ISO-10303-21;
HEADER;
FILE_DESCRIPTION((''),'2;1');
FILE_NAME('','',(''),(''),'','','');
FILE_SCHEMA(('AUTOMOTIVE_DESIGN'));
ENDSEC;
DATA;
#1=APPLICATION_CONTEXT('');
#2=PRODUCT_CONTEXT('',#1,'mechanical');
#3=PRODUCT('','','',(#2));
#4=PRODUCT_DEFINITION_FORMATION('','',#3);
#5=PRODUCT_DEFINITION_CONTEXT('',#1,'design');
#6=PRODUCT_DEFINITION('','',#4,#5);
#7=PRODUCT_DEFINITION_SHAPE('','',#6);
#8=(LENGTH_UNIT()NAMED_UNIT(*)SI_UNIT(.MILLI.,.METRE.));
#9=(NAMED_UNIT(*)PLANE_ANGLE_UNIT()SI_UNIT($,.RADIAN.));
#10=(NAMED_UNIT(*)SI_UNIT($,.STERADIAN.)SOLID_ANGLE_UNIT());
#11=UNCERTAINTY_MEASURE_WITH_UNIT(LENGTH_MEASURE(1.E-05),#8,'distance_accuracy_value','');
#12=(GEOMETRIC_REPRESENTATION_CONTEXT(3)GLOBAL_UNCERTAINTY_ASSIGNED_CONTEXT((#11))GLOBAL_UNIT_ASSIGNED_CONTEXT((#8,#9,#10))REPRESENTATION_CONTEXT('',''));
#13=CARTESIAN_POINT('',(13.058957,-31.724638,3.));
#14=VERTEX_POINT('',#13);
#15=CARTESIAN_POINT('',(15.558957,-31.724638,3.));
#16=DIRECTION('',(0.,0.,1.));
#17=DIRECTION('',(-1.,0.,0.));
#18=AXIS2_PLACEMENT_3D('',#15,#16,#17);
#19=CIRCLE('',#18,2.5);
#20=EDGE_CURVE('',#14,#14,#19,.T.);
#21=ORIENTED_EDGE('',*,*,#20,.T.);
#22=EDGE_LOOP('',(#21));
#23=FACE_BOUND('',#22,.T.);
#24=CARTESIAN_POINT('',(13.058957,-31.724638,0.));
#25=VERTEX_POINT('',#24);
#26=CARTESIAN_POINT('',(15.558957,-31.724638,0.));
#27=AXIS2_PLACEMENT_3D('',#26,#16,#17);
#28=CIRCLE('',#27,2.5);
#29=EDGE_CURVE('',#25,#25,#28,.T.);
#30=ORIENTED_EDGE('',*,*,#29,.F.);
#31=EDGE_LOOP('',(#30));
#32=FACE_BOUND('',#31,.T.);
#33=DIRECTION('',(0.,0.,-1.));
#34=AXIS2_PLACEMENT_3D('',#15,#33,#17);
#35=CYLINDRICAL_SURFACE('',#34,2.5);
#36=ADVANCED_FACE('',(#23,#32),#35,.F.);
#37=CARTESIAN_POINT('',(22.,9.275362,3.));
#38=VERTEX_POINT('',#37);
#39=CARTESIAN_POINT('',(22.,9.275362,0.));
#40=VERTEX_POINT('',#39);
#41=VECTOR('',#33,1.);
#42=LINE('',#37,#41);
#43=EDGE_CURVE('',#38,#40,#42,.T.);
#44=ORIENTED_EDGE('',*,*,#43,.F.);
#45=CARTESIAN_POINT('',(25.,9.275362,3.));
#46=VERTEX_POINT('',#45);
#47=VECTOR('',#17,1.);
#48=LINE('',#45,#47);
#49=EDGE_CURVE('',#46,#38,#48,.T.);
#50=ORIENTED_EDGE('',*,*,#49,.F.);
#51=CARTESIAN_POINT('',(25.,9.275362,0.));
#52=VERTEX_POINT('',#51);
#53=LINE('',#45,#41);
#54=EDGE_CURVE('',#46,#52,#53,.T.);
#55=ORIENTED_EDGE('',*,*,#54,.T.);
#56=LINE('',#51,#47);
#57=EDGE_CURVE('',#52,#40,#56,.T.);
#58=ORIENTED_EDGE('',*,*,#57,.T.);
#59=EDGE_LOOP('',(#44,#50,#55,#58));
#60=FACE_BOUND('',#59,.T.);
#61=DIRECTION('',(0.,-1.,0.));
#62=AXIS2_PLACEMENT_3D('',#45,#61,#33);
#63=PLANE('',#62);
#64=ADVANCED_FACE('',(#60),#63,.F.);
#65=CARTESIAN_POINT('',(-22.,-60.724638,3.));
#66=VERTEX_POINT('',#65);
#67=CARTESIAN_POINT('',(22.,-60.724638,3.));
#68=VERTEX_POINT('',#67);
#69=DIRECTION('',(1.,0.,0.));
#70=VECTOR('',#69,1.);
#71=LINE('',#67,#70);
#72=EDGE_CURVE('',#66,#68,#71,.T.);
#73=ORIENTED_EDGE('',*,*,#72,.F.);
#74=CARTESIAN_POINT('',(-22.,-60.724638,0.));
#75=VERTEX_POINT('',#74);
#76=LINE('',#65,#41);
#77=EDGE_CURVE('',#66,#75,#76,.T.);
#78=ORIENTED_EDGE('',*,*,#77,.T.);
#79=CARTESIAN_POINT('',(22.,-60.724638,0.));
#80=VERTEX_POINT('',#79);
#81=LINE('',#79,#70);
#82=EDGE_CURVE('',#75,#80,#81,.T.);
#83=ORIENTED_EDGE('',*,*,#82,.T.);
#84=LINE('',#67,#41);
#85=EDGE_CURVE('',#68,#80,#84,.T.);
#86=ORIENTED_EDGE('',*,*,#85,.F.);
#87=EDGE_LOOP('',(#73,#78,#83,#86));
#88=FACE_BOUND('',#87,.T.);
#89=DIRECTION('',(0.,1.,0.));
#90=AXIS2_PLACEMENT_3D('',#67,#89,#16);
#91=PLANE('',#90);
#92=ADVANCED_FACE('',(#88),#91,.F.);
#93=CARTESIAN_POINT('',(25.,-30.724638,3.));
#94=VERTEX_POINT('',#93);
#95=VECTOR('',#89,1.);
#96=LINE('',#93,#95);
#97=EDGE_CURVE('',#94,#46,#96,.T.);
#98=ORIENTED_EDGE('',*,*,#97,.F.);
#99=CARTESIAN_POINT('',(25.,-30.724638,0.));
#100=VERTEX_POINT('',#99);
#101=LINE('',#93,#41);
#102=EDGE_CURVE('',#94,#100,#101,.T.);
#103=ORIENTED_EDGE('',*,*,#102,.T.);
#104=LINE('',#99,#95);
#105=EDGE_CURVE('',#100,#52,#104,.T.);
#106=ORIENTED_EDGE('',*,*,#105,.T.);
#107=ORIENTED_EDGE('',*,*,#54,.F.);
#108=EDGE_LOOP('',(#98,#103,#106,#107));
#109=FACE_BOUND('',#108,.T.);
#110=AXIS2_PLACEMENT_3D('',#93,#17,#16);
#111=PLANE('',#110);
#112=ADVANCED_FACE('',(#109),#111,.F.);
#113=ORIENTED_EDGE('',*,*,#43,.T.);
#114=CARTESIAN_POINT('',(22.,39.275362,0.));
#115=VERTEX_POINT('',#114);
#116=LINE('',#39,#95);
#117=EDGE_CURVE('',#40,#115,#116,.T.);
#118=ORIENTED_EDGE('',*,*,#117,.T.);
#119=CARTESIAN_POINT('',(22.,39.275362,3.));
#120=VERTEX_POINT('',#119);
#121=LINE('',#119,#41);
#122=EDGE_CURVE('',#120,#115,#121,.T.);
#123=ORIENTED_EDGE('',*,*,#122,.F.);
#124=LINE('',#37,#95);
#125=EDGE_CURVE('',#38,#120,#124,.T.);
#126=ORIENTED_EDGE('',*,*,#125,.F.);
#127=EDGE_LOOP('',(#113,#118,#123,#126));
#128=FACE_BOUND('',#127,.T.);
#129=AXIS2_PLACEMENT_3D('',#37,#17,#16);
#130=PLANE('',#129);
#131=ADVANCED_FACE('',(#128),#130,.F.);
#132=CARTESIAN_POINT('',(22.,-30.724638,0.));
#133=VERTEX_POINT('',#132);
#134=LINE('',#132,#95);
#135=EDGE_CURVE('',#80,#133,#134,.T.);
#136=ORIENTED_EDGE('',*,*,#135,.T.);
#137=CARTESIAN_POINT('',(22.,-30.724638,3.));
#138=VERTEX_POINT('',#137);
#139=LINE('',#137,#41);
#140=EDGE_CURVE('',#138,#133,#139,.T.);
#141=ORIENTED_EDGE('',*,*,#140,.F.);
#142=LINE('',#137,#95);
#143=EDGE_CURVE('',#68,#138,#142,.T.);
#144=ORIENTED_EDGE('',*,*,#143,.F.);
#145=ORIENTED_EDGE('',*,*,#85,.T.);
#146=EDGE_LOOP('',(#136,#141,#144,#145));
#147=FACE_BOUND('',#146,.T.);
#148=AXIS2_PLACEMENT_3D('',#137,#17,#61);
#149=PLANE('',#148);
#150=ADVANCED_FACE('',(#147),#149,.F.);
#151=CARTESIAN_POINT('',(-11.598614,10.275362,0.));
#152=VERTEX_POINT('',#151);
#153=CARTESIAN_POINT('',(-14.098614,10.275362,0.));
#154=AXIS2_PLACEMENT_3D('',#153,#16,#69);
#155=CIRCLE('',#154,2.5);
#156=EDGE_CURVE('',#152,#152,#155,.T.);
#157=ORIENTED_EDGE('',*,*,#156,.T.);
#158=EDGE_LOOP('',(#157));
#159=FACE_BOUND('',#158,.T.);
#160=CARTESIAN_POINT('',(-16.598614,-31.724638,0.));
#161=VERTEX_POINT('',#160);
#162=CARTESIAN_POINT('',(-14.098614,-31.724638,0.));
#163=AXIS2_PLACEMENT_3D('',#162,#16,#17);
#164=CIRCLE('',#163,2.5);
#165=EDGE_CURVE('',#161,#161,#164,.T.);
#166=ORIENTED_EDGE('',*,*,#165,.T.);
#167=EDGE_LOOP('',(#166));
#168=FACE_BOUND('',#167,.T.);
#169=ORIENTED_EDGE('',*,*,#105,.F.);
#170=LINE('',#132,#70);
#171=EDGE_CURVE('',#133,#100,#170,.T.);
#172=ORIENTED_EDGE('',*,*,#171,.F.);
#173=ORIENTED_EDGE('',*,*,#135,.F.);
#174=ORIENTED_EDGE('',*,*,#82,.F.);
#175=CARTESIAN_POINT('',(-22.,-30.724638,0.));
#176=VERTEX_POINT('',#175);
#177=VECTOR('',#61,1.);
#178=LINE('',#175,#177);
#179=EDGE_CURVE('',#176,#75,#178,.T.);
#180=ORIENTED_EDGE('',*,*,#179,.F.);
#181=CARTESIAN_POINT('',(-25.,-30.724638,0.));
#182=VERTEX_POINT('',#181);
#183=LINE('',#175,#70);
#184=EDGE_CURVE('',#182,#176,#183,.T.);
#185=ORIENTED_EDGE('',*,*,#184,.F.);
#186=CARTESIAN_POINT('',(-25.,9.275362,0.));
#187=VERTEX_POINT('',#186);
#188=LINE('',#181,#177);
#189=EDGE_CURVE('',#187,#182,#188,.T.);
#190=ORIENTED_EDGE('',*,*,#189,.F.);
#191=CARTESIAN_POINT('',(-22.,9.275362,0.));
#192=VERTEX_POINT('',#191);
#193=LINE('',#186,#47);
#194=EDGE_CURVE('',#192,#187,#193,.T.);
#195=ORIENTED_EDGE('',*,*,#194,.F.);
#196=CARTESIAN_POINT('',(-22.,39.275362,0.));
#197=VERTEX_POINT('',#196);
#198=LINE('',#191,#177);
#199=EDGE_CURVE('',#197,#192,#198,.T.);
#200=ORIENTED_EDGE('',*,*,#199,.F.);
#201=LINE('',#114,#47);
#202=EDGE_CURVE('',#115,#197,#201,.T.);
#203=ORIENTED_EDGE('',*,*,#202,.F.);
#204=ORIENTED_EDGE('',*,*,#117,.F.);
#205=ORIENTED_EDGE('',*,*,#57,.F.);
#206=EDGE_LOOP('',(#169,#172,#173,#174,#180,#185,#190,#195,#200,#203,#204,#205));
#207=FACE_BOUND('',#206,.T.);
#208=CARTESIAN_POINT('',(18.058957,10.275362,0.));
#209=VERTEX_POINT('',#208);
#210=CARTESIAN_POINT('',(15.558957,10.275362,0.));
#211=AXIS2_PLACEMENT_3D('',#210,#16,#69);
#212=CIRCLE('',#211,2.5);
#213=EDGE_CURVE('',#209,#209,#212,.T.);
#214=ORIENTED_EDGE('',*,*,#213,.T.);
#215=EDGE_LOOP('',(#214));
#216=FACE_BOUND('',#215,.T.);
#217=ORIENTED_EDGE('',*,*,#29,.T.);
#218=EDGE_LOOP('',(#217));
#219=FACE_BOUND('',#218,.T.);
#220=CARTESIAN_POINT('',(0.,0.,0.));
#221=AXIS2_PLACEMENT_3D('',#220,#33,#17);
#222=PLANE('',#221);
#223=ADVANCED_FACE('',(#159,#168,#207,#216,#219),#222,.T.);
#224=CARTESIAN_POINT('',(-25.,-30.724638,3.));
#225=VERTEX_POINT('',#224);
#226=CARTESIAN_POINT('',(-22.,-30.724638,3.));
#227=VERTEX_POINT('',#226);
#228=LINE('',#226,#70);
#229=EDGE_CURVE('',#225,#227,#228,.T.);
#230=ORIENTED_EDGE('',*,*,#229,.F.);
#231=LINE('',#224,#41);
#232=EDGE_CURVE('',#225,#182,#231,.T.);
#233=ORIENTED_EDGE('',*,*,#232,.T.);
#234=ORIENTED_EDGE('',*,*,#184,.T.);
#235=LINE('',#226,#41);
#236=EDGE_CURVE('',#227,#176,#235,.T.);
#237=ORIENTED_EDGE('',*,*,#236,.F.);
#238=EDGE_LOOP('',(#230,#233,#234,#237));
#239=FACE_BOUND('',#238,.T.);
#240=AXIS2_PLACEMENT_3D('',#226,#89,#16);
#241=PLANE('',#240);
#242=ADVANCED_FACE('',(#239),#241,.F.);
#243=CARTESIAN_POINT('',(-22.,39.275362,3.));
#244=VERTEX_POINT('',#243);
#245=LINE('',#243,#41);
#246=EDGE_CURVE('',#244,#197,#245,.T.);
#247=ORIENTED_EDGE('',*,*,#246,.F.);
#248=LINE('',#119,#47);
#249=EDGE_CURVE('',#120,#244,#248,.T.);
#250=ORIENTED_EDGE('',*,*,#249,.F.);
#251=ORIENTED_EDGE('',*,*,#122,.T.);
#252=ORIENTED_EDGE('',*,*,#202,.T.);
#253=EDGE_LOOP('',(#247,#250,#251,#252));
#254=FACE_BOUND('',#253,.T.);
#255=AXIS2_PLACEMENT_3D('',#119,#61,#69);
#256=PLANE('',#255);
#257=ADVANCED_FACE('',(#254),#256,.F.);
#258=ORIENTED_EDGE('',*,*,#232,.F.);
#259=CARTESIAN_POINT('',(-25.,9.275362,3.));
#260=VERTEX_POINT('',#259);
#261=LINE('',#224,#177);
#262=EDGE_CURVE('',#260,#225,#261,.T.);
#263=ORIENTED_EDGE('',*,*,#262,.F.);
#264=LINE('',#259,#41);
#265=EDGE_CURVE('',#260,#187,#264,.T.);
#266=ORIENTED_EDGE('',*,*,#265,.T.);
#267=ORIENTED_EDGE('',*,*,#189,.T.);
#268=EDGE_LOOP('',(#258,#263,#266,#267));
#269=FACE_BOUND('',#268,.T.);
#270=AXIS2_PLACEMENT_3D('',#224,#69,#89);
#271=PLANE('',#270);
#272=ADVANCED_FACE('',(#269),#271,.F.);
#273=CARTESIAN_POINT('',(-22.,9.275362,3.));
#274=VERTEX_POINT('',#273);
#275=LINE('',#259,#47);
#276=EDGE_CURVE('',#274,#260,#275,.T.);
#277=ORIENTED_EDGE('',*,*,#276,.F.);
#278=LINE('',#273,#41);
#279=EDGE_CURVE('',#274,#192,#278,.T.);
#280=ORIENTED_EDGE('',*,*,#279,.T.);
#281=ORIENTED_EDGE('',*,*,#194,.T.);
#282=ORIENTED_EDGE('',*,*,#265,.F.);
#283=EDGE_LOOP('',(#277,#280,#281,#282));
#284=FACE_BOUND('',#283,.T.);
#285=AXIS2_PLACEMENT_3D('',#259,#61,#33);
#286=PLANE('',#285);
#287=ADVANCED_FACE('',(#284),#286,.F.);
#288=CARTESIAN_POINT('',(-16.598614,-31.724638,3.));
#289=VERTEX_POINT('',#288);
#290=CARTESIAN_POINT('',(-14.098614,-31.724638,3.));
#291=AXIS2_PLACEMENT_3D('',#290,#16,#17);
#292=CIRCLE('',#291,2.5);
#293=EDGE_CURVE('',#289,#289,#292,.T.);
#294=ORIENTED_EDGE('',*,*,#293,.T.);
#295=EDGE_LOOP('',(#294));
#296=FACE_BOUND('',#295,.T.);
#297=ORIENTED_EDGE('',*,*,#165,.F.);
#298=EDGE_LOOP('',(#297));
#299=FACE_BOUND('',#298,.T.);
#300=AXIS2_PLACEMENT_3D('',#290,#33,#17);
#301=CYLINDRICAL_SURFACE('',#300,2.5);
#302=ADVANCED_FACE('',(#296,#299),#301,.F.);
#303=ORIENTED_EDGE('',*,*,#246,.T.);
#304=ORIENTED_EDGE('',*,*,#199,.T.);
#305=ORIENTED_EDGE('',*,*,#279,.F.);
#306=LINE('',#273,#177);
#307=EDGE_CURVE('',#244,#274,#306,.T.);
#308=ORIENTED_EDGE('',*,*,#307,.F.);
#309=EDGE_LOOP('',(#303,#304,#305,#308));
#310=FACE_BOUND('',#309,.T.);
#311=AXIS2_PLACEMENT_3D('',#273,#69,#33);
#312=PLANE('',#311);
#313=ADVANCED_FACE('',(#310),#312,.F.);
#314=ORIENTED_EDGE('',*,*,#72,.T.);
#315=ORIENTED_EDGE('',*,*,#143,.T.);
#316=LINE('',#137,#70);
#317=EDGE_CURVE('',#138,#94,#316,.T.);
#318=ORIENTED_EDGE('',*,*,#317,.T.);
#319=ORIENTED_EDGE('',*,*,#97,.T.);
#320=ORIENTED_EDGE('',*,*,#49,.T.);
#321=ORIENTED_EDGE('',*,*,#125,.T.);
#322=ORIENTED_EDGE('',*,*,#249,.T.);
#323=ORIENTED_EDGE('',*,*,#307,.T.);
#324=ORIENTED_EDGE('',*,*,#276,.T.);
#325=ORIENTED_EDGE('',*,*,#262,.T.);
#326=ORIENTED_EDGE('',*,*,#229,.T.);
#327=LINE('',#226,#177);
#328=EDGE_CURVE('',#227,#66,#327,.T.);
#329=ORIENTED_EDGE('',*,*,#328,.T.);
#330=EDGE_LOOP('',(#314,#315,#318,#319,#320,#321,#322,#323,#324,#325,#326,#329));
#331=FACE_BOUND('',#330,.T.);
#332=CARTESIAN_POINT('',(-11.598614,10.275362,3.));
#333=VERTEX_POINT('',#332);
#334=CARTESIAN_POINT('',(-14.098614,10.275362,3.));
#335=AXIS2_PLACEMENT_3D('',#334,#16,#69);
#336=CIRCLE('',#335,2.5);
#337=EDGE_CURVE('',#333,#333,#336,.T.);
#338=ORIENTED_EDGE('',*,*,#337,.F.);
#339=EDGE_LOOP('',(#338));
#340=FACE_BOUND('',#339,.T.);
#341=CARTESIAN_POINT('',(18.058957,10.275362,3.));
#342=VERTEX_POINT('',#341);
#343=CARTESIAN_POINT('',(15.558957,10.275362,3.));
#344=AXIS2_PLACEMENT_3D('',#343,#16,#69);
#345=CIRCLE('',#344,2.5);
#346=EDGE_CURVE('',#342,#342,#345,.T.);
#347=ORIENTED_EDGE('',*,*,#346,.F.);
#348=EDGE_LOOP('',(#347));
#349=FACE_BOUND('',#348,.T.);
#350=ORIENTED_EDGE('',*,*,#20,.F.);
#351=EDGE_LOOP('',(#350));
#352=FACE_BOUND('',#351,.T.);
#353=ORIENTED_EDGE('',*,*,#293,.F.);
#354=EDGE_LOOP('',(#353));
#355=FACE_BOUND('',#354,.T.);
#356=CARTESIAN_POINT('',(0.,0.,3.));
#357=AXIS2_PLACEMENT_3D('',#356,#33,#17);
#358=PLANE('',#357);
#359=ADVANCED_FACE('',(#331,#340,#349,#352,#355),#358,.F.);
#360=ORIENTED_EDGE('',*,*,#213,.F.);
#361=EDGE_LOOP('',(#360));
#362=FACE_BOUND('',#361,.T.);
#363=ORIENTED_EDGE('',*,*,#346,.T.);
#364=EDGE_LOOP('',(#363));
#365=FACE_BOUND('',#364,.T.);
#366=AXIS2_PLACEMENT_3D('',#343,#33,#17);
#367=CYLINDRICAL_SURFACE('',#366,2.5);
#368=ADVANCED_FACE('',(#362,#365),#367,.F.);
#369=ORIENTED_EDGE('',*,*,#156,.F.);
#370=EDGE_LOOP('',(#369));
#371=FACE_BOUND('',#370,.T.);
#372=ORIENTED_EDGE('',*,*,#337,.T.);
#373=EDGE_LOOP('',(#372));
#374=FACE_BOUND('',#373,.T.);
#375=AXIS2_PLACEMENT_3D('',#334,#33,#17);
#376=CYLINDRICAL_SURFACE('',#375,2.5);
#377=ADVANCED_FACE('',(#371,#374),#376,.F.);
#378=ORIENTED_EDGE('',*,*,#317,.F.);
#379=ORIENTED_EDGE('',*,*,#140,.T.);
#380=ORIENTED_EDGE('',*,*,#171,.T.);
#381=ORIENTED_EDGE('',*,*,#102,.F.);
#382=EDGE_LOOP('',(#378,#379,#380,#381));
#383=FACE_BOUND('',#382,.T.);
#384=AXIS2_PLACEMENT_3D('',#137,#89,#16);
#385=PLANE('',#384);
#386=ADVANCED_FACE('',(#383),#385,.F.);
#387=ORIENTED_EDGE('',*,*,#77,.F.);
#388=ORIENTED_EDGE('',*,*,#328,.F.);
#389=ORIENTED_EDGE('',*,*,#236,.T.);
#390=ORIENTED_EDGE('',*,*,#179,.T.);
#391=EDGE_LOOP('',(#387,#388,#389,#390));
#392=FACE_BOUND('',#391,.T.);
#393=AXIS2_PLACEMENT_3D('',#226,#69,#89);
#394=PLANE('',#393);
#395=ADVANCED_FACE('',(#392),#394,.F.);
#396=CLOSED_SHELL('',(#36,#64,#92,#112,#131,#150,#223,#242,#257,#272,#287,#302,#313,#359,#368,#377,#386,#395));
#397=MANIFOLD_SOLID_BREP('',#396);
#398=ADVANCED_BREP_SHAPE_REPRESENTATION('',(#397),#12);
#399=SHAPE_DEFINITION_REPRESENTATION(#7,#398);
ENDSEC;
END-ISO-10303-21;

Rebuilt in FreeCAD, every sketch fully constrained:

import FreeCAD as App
import Part
import Sketcher


def add_polygon(sketch, points):
    """Adds a closed chain of lines whose ends are joined by coincident constraints."""
    first, n = sketch.GeometryCount, len(points)
    for a, b in zip(points, points[1:] + points[:1]):
        sketch.addGeometry(Part.LineSegment(App.Vector(*a, 0), App.Vector(*b, 0)), False)
    for i in range(n):
        sketch.addConstraint(Sketcher.Constraint("Coincident", first + i, 2, first + (i + 1) % n, 1))

doc = App.newDocument("Part")
body = doc.addObject("PartDesign::Body", "Body")

# Sketch on XY plane
sketch1 = body.newObject("Sketcher::SketchObject", "Sketch")
sketch1.AttachmentSupport = (doc.getObject("XY_Plane"), [""])
sketch1.MapMode = "FlatFace"
add_polygon(sketch1, [(-22, 9.3), (-25, 9.3), (-25, -30.7), (-22, -30.7), (-22, -60.7), (22, -60.7), (22, -30.7), (25, -30.7), (25, 9.3), (22, 9.3), (22, 39.3), (-22, 39.3)])  # lines 0-11
sketch1.addGeometry(Part.Circle(App.Vector(15.6, -31.7, 0), App.Vector(0, 0, 1), 2.5), False)  # 12
sketch1.addGeometry(Part.Circle(App.Vector(-14.1, -31.7, 0), App.Vector(0, 0, 1), 2.5), False)  # 13
sketch1.addGeometry(Part.Circle(App.Vector(15.6, 10.3, 0), App.Vector(0, 0, 1), 2.5), False)  # 14
sketch1.addGeometry(Part.Circle(App.Vector(-14.1, 10.3, 0), App.Vector(0, 0, 1), 2.5), False)  # 15
sketch1.addConstraint([
    Sketcher.Constraint("Horizontal", 0),
    Sketcher.Constraint("Vertical", 1),
    Sketcher.Constraint("Horizontal", 2),
    Sketcher.Constraint("Vertical", 3),
    Sketcher.Constraint("Horizontal", 4),
    Sketcher.Constraint("Vertical", 5),
    Sketcher.Constraint("Horizontal", 6),
    Sketcher.Constraint("Vertical", 7),
    Sketcher.Constraint("Horizontal", 8),
    Sketcher.Constraint("Vertical", 9),
    Sketcher.Constraint("Horizontal", 10),
    Sketcher.Constraint("Vertical", 11),
    Sketcher.Constraint("Equal", 12, 13),
    Sketcher.Constraint("Equal", 13, 14),
    Sketcher.Constraint("Equal", 14, 15),
    Sketcher.Constraint("Symmetric", 2, 2, 5, 2, -2),
    Sketcher.Constraint("Symmetric", 0, 2, 7, 2, -2),
    Sketcher.Constraint("Horizontal", 12, 3, 13, 3),
    Sketcher.Constraint("Horizontal", 14, 3, 15, 3),
    Sketcher.Constraint("Vertical", 12, 3, 14, 3),
    Sketcher.Constraint("Vertical", 13, 3, 15, 3),
    Sketcher.Constraint("Vertical", 5, 2, 8, 2),
    Sketcher.Constraint("Vertical", 3, 2, 10, 2),
    Sketcher.Constraint("Equal", 5, 9),
    Sketcher.Constraint("Diameter", 12, 5.0),
    Sketcher.Constraint("DistanceX", 0, 2, 0, 1, 3.0),
    Sketcher.Constraint("DistanceX", 4, 1, 4, 2, 44.0),
    Sketcher.Constraint("DistanceY", 1, 2, 1, 1, 40.0),
    Sketcher.Constraint("DistanceY", 3, 2, 3, 1, 30.0),
    Sketcher.Constraint("DistanceY", 12, 3, 14, 3, 42.0),
    Sketcher.Constraint("DistanceY", 0, 2, 15, 3, 1.0),
    Sketcher.Constraint("DistanceX", 13, 3, 12, 3, 29.65757),
    Sketcher.Constraint("DistanceX", -1, 1, 12, 3, 15.558957),
    Sketcher.Constraint("DistanceY", 12, 3, -1, 1, 31.724638),
])
pad1 = body.newObject("PartDesign::Pad", "Pad")
pad1.Profile = sketch1
pad1.Length = 3

doc.recompute()
